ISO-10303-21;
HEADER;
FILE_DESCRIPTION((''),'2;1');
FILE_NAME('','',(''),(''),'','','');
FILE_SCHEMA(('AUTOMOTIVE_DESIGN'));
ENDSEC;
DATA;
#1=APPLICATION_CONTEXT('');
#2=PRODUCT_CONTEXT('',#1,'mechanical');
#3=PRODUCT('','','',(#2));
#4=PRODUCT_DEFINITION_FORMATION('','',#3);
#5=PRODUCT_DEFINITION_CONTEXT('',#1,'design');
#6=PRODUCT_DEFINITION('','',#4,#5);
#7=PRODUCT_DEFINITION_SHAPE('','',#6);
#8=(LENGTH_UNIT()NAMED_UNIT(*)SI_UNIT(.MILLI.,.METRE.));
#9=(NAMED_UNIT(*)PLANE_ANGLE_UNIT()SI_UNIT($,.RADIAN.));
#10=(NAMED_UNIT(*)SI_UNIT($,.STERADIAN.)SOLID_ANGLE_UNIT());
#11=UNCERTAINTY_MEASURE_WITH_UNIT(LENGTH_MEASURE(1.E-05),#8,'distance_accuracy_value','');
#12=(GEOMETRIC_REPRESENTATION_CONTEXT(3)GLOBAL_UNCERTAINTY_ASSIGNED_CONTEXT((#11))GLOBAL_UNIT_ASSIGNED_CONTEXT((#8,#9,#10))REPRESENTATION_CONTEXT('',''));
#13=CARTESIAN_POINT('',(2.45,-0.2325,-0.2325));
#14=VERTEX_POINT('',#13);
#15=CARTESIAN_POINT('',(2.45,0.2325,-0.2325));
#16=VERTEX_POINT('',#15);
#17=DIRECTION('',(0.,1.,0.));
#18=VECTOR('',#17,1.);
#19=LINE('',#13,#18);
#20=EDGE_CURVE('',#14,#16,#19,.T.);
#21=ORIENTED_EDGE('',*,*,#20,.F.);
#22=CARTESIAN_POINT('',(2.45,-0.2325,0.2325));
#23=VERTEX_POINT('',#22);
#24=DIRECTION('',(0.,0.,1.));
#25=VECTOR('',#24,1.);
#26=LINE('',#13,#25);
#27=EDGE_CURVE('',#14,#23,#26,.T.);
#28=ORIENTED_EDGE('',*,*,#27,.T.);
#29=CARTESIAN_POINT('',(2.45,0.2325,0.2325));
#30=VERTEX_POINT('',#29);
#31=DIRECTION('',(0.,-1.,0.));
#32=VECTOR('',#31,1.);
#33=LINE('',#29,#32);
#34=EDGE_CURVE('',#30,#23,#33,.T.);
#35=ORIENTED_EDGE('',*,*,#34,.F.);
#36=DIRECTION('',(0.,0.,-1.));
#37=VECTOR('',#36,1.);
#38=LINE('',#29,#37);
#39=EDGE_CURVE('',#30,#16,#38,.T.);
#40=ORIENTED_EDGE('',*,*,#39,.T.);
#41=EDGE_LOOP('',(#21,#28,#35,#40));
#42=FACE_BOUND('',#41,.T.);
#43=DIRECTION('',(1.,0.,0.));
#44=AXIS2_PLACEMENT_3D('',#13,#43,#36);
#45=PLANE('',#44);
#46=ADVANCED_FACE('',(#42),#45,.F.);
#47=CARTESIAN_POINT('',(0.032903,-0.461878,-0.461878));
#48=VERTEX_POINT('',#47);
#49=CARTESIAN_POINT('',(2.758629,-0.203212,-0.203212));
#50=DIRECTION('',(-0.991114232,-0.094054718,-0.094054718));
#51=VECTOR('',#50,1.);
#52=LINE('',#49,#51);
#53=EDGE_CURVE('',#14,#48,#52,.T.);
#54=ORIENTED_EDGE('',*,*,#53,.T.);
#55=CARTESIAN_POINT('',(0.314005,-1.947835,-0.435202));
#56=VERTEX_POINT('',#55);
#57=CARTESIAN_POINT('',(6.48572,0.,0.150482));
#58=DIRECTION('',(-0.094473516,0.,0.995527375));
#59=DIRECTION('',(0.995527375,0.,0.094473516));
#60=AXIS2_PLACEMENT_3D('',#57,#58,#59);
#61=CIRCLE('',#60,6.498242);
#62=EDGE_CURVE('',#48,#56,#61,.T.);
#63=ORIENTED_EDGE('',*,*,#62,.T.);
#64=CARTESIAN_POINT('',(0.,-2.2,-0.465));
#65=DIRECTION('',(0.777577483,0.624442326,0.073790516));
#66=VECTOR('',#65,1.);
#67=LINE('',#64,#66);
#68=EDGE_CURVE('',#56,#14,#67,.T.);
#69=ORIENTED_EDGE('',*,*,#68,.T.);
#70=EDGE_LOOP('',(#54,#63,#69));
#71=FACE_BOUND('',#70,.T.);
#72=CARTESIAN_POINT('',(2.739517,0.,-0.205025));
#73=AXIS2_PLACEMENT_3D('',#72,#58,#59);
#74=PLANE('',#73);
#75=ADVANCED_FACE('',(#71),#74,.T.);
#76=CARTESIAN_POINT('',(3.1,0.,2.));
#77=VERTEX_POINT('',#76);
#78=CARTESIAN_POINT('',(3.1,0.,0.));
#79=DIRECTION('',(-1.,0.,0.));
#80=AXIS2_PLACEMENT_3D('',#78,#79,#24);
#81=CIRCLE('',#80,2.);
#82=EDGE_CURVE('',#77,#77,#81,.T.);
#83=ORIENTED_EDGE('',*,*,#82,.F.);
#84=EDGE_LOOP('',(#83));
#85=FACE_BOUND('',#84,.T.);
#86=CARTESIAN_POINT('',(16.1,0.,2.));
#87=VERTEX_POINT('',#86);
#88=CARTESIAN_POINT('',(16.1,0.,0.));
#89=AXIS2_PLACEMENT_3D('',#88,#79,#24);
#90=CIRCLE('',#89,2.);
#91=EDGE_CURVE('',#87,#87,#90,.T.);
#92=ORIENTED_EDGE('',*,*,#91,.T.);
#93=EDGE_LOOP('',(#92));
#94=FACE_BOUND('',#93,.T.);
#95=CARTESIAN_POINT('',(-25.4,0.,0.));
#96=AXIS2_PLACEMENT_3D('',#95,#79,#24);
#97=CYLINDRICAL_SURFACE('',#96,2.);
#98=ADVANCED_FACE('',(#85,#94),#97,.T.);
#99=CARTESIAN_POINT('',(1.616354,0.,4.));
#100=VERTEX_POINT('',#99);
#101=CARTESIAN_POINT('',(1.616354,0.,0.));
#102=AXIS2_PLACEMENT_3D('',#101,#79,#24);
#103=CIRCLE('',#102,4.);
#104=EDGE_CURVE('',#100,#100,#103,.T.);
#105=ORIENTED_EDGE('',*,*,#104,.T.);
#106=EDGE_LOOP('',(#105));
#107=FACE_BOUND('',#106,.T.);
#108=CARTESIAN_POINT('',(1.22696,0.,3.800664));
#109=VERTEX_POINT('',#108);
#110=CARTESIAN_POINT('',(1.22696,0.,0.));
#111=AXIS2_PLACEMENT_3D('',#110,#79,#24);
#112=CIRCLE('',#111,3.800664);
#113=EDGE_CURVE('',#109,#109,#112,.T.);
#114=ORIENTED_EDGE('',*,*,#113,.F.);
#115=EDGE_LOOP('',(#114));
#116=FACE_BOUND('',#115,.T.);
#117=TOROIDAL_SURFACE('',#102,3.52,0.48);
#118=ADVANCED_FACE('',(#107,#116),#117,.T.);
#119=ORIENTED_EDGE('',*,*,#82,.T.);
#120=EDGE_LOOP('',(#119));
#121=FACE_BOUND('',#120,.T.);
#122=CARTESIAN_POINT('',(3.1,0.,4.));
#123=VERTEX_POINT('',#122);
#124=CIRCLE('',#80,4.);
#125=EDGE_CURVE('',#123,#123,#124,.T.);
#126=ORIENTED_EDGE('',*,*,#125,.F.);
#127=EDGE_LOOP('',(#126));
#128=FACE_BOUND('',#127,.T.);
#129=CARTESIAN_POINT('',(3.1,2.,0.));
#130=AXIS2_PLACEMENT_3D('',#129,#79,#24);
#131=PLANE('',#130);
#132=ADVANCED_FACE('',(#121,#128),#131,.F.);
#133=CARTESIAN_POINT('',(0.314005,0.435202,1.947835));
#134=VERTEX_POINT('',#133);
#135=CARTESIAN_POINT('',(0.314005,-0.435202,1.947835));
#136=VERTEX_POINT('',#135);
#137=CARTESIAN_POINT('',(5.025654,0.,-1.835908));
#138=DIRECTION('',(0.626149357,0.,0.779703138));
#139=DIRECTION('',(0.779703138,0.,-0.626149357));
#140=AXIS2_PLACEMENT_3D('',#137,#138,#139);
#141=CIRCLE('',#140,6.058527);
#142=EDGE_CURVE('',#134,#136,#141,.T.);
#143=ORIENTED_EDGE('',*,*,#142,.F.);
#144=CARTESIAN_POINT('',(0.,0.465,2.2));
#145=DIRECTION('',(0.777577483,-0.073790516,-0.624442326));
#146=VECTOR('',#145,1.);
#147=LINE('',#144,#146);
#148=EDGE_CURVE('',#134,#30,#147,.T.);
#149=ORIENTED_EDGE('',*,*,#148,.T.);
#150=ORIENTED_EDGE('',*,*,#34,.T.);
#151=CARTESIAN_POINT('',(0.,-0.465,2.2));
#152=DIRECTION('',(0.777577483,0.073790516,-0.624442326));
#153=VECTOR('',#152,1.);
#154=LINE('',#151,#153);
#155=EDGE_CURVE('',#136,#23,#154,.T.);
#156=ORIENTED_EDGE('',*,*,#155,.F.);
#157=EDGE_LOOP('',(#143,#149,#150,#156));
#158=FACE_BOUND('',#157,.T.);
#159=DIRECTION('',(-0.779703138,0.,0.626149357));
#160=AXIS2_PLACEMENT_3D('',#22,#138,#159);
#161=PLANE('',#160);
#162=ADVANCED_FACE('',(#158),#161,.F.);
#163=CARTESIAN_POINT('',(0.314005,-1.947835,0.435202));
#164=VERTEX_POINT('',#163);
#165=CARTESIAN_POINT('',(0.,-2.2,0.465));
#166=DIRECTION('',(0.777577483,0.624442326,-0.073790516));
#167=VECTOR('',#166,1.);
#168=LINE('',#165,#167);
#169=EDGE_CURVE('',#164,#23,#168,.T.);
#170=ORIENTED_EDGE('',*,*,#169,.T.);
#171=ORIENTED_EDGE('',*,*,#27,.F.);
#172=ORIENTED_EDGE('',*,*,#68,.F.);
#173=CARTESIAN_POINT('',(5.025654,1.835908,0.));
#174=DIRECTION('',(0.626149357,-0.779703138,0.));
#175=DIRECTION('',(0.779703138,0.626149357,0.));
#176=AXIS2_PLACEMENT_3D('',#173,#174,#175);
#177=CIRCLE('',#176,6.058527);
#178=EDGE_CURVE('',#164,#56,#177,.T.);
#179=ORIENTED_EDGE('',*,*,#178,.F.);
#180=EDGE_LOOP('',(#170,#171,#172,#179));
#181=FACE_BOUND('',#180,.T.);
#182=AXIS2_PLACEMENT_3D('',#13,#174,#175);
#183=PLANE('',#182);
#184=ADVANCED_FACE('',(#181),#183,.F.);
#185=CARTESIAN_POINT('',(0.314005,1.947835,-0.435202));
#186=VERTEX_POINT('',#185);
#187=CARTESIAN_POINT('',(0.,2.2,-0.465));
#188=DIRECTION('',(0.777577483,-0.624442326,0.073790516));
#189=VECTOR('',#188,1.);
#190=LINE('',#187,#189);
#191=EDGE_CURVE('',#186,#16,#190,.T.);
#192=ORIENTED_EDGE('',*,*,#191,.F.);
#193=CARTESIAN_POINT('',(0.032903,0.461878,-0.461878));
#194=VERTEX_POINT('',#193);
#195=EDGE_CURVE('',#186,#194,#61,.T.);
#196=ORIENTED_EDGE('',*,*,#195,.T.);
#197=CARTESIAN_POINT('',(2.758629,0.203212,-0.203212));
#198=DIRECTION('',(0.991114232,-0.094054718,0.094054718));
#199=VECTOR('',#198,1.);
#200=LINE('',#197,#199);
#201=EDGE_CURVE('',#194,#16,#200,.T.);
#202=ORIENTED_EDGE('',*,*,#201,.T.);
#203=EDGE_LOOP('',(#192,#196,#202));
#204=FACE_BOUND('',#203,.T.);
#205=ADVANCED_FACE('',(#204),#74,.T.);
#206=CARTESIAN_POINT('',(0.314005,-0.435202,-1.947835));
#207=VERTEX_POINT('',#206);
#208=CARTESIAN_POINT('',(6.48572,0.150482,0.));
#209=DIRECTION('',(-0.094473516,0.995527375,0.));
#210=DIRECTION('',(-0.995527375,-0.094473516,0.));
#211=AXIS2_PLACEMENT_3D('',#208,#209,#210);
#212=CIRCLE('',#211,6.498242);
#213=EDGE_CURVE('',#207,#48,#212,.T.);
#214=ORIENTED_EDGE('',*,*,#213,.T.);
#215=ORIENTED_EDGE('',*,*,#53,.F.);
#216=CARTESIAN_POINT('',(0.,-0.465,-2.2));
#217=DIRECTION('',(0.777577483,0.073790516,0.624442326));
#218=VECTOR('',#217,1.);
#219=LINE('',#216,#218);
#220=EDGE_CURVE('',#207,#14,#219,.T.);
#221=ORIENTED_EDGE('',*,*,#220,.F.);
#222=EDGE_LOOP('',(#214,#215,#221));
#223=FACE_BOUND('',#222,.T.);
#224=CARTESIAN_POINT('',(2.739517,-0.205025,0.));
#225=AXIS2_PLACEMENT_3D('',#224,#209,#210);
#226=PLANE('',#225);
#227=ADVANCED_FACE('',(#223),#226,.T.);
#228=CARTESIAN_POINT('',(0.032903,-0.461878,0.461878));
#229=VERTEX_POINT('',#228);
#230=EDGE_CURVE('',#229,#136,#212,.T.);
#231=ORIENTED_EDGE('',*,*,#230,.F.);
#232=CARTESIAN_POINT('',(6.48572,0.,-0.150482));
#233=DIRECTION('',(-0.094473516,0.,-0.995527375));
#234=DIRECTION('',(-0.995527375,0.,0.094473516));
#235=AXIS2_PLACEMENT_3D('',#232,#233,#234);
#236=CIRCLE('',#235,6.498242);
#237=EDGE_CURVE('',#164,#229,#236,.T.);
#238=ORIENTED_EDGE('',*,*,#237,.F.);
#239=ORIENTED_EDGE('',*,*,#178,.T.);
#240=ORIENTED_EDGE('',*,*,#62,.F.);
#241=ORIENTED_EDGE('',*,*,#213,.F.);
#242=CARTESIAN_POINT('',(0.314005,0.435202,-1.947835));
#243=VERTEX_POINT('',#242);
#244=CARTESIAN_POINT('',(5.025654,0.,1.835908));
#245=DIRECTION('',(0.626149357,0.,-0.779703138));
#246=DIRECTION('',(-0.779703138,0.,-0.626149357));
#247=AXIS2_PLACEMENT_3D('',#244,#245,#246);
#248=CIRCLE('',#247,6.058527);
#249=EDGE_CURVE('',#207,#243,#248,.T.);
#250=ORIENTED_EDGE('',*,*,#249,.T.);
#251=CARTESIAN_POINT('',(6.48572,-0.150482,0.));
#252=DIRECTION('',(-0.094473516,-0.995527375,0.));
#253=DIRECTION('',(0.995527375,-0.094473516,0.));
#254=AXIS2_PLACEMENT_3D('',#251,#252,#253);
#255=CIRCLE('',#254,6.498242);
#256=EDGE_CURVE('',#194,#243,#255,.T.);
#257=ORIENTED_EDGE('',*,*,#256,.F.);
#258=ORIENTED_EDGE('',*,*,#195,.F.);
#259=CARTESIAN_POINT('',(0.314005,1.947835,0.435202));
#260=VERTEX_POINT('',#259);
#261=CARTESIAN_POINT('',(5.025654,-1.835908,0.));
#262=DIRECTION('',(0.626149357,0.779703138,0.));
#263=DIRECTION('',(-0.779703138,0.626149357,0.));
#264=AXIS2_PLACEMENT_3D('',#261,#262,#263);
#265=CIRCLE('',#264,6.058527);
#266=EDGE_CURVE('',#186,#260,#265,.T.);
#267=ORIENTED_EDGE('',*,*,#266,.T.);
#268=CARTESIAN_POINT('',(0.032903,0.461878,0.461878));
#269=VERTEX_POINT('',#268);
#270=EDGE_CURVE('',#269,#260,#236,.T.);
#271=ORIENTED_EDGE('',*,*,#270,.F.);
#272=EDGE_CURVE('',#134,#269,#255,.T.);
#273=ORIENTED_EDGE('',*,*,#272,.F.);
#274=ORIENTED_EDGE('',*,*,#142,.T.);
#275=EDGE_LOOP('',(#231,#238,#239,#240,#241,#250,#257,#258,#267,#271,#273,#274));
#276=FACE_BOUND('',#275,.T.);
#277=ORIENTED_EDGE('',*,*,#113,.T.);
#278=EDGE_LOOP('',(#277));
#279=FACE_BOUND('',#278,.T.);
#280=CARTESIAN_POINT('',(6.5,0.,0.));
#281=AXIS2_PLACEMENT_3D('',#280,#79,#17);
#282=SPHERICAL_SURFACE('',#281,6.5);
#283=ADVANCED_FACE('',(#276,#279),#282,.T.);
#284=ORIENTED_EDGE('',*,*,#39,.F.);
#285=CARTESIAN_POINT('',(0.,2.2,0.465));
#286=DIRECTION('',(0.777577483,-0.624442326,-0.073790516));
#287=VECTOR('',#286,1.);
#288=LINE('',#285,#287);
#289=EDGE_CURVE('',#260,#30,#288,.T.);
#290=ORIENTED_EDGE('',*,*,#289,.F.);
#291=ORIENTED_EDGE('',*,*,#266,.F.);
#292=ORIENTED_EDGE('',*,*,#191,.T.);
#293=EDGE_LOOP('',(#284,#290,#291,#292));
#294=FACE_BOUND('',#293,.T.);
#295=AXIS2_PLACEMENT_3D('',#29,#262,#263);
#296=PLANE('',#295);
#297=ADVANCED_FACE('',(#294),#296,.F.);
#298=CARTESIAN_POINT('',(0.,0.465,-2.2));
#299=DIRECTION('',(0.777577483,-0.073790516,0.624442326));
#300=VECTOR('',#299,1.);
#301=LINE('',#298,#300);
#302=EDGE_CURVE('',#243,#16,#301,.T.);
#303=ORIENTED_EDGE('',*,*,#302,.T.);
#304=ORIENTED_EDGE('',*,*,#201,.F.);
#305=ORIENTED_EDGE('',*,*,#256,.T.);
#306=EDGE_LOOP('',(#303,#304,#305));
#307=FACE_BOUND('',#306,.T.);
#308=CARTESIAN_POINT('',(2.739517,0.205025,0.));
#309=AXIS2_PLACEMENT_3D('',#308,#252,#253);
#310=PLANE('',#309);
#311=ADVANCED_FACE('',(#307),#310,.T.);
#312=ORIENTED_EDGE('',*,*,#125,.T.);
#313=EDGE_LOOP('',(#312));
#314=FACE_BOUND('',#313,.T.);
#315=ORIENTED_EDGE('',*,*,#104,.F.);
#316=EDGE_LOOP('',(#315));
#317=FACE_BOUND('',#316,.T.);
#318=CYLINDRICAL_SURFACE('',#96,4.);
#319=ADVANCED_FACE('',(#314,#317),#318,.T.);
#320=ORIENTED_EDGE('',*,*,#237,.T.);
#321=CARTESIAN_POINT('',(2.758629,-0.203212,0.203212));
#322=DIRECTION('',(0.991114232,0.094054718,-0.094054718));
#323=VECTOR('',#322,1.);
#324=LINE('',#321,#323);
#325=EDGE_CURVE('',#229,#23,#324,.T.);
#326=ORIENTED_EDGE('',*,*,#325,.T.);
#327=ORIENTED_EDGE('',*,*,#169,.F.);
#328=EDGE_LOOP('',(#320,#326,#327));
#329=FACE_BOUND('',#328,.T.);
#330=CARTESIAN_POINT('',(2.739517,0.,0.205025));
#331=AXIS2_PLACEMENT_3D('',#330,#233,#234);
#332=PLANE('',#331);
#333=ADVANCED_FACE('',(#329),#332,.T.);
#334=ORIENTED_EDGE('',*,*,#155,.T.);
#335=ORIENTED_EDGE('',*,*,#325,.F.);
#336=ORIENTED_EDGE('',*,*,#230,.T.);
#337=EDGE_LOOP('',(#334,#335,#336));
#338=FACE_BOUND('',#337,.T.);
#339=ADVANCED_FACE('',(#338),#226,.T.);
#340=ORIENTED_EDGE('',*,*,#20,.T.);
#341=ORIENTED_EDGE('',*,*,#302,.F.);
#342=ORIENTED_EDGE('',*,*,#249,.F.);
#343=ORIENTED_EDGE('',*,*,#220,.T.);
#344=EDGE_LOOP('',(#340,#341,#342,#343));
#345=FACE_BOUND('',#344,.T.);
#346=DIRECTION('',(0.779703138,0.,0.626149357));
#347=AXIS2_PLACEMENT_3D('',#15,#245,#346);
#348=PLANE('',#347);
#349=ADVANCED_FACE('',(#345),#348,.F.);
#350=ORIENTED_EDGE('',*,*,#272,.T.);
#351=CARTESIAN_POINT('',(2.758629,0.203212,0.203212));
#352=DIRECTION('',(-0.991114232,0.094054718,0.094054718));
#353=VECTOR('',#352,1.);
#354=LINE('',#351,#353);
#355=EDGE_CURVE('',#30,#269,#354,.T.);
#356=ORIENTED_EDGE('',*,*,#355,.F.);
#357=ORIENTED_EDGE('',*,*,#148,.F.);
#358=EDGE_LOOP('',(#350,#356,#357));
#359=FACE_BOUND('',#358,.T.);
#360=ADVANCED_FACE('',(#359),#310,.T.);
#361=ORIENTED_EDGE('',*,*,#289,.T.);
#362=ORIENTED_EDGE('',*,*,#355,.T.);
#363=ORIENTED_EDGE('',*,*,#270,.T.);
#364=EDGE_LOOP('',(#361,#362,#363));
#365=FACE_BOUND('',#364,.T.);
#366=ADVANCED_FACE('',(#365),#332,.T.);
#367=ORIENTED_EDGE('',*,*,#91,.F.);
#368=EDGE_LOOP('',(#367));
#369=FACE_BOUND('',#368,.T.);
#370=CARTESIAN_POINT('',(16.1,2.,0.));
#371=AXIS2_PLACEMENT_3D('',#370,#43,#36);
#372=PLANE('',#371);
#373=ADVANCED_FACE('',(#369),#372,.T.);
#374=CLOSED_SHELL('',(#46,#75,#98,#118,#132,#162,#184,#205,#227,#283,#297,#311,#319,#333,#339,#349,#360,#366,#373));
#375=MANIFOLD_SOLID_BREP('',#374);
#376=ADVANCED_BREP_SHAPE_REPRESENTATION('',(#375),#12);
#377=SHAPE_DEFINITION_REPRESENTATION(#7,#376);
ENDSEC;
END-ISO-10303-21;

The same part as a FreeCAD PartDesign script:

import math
import FreeCAD as App
import Part
import Sketcher

V = App.Vector

doc = App.newDocument("Part")
body = doc.addObject("PartDesign::Body", "Body")

sketch1 = body.newObject("Sketcher::SketchObject", "Sketch")
sketch1.AttachmentSupport = (doc.getObject("XY_Plane"), [""])
sketch1.MapMode = "FlatFace"
sketch1.addGeometry([
    Part.LineSegment(V(3.1, 2, 0), V(3.1, 4, 0)),
    Part.LineSegment(V(3.1, 4, 0), V(1.62, 4, 0)),
    Part.ArcOfCircle(Part.Circle(V(1.62, 3.52, 0), V(0, 0, 1), 0.48), math.radians(90), math.radians(144)),
    Part.ArcOfCircle(Part.Circle(V(6.5, 0, 0), V(0, 0, 1), 6.5), math.radians(144), math.radians(180)),
    Part.LineSegment(V(0, 0, 0), V(16.1, 0, 0)),
    Part.LineSegment(V(16.1, 0, 0), V(16.1, 2, 0)),
    Part.LineSegment(V(16.1, 2, 0), V(3.1, 2, 0)),
], False)
sketch1.addConstraint([
    Sketcher.Constraint("Coincident", 0, 2, 1, 1),
    Sketcher.Constraint("Tangent", 1, 2, 2, 1),
    Sketcher.Constraint("Tangent", 2, 2, 3, 1),
    Sketcher.Constraint("Coincident", 3, 2, 4, 1),
    Sketcher.Constraint("Coincident", 4, 2, 5, 1),
    Sketcher.Constraint("Coincident", 5, 2, 6, 1),
    Sketcher.Constraint("Coincident", 6, 2, 0, 1),
    Sketcher.Constraint("Vertical", 0),
    Sketcher.Constraint("Horizontal", 1),
    Sketcher.Constraint("Horizontal", 4),
    Sketcher.Constraint("Vertical", 5),
    Sketcher.Constraint("Horizontal", 6),
    Sketcher.Constraint("Coincident", 3, 2, -1, 1),
    Sketcher.Constraint("PointOnObject", 3, 3, -1),
    Sketcher.Constraint("Equal", 0, 5),
    Sketcher.Constraint("Radius", 3, 6.5),
    Sketcher.Constraint("DistanceX", 6, 2, 6, 1, 13.0),
    Sketcher.Constraint("DistanceY", 0, 1, 0, 2, 2.0),
    Sketcher.Constraint("Radius", 2, 0.48),
    Sketcher.Constraint("DistanceX", 4, 1, 4, 2, 16.1),
])
revolution = body.newObject("PartDesign::Revolution", "Revolution")
revolution.Profile = sketch1
revolution.ReferenceAxis = (sketch1, ["H_Axis"])
revolution.Angle = 360

sketch2 = body.newObject("Sketcher::SketchObject", "Sketch001")
sketch2.AttachmentSupport = (doc.getObject("YZ_Plane"), [""])
sketch2.MapMode = "FlatFace"
sketch2.addGeometry([
    Part.LineSegment(V(2.2, 0.5, 0), V(-2.2, 0.5, 0)),
    Part.LineSegment(V(-2.2, 0.5, 0), V(-2.2, -0.5, 0)),
    Part.LineSegment(V(-2.2, -0.5, 0), V(2.2, -0.5, 0)),
    Part.LineSegment(V(2.2, -0.5, 0), V(2.2, 0.5, 0)),
], False)
sketch2.addConstraint([
    Sketcher.Constraint("Coincident", 0, 2, 1, 1),
    Sketcher.Constraint("Coincident", 1, 2, 2, 1),
    Sketcher.Constraint("Coincident", 2, 2, 3, 1),
    Sketcher.Constraint("Coincident", 3, 2, 0, 1),
    Sketcher.Constraint("Horizontal", 0),
    Sketcher.Constraint("Vertical", 1),
    Sketcher.Constraint("Horizontal", 2),
    Sketcher.Constraint("Vertical", 3),
    Sketcher.Constraint("Symmetric", 0, 2, 2, 2, -1, 1),
    Sketcher.Constraint("DistanceX", 0, 2, 0, 1, 4.4),
    Sketcher.Constraint("DistanceY", 1, 2, 1, 1, 0.93),
])

sketch3 = body.newObject("Sketcher::SketchObject", "Sketch002")
sketch3.AttachmentSupport = (doc.getObject("YZ_Plane"), [""])
sketch3.MapMode = "FlatFace"
sketch3.AttachmentOffset = App.Placement(V(0, 0, 2.45), App.Rotation())
sketch3.addGeometry([
    Part.LineSegment(V(0.23, 0.23, 0), V(-0.23, 0.23, 0)),
    Part.LineSegment(V(-0.23, 0.23, 0), V(-0.23, -0.23, 0)),
    Part.LineSegment(V(-0.23, -0.23, 0), V(0.23, -0.23, 0)),
    Part.LineSegment(V(0.23, -0.23, 0), V(0.23, 0.23, 0)),
], False)
sketch3.addConstraint([
    Sketcher.Constraint("Coincident", 0, 2, 1, 1),
    Sketcher.Constraint("Coincident", 1, 2, 2, 1),
    Sketcher.Constraint("Coincident", 2, 2, 3, 1),
    Sketcher.Constraint("Coincident", 3, 2, 0, 1),
    Sketcher.Constraint("Horizontal", 0),
    Sketcher.Constraint("Vertical", 1),
    Sketcher.Constraint("Horizontal", 2),
    Sketcher.Constraint("Vertical", 3),
    Sketcher.Constraint("Symmetric", 0, 2, 2, 2, -1, 1),
    Sketcher.Constraint("Equal", 2, 1),
    Sketcher.Constraint("DistanceX", 0, 2, 0, 1, 0.465),
])

subtractiveloft = body.newObject("PartDesign::SubtractiveLoft", "SubtractiveLoft")
subtractiveloft.Profile = sketch2
subtractiveloft.Sections = [sketch3]
doc.recompute()

polarpattern = body.newObject("PartDesign::PolarPattern", "PolarPattern")
polarpattern.Originals = [subtractiveloft]
polarpattern.Axis = (doc.getObject("X_Axis"), [""])
polarpattern.Angle = 90
polarpattern.Occurrences = 2
body.Tip = polarpattern

doc.recompute()
